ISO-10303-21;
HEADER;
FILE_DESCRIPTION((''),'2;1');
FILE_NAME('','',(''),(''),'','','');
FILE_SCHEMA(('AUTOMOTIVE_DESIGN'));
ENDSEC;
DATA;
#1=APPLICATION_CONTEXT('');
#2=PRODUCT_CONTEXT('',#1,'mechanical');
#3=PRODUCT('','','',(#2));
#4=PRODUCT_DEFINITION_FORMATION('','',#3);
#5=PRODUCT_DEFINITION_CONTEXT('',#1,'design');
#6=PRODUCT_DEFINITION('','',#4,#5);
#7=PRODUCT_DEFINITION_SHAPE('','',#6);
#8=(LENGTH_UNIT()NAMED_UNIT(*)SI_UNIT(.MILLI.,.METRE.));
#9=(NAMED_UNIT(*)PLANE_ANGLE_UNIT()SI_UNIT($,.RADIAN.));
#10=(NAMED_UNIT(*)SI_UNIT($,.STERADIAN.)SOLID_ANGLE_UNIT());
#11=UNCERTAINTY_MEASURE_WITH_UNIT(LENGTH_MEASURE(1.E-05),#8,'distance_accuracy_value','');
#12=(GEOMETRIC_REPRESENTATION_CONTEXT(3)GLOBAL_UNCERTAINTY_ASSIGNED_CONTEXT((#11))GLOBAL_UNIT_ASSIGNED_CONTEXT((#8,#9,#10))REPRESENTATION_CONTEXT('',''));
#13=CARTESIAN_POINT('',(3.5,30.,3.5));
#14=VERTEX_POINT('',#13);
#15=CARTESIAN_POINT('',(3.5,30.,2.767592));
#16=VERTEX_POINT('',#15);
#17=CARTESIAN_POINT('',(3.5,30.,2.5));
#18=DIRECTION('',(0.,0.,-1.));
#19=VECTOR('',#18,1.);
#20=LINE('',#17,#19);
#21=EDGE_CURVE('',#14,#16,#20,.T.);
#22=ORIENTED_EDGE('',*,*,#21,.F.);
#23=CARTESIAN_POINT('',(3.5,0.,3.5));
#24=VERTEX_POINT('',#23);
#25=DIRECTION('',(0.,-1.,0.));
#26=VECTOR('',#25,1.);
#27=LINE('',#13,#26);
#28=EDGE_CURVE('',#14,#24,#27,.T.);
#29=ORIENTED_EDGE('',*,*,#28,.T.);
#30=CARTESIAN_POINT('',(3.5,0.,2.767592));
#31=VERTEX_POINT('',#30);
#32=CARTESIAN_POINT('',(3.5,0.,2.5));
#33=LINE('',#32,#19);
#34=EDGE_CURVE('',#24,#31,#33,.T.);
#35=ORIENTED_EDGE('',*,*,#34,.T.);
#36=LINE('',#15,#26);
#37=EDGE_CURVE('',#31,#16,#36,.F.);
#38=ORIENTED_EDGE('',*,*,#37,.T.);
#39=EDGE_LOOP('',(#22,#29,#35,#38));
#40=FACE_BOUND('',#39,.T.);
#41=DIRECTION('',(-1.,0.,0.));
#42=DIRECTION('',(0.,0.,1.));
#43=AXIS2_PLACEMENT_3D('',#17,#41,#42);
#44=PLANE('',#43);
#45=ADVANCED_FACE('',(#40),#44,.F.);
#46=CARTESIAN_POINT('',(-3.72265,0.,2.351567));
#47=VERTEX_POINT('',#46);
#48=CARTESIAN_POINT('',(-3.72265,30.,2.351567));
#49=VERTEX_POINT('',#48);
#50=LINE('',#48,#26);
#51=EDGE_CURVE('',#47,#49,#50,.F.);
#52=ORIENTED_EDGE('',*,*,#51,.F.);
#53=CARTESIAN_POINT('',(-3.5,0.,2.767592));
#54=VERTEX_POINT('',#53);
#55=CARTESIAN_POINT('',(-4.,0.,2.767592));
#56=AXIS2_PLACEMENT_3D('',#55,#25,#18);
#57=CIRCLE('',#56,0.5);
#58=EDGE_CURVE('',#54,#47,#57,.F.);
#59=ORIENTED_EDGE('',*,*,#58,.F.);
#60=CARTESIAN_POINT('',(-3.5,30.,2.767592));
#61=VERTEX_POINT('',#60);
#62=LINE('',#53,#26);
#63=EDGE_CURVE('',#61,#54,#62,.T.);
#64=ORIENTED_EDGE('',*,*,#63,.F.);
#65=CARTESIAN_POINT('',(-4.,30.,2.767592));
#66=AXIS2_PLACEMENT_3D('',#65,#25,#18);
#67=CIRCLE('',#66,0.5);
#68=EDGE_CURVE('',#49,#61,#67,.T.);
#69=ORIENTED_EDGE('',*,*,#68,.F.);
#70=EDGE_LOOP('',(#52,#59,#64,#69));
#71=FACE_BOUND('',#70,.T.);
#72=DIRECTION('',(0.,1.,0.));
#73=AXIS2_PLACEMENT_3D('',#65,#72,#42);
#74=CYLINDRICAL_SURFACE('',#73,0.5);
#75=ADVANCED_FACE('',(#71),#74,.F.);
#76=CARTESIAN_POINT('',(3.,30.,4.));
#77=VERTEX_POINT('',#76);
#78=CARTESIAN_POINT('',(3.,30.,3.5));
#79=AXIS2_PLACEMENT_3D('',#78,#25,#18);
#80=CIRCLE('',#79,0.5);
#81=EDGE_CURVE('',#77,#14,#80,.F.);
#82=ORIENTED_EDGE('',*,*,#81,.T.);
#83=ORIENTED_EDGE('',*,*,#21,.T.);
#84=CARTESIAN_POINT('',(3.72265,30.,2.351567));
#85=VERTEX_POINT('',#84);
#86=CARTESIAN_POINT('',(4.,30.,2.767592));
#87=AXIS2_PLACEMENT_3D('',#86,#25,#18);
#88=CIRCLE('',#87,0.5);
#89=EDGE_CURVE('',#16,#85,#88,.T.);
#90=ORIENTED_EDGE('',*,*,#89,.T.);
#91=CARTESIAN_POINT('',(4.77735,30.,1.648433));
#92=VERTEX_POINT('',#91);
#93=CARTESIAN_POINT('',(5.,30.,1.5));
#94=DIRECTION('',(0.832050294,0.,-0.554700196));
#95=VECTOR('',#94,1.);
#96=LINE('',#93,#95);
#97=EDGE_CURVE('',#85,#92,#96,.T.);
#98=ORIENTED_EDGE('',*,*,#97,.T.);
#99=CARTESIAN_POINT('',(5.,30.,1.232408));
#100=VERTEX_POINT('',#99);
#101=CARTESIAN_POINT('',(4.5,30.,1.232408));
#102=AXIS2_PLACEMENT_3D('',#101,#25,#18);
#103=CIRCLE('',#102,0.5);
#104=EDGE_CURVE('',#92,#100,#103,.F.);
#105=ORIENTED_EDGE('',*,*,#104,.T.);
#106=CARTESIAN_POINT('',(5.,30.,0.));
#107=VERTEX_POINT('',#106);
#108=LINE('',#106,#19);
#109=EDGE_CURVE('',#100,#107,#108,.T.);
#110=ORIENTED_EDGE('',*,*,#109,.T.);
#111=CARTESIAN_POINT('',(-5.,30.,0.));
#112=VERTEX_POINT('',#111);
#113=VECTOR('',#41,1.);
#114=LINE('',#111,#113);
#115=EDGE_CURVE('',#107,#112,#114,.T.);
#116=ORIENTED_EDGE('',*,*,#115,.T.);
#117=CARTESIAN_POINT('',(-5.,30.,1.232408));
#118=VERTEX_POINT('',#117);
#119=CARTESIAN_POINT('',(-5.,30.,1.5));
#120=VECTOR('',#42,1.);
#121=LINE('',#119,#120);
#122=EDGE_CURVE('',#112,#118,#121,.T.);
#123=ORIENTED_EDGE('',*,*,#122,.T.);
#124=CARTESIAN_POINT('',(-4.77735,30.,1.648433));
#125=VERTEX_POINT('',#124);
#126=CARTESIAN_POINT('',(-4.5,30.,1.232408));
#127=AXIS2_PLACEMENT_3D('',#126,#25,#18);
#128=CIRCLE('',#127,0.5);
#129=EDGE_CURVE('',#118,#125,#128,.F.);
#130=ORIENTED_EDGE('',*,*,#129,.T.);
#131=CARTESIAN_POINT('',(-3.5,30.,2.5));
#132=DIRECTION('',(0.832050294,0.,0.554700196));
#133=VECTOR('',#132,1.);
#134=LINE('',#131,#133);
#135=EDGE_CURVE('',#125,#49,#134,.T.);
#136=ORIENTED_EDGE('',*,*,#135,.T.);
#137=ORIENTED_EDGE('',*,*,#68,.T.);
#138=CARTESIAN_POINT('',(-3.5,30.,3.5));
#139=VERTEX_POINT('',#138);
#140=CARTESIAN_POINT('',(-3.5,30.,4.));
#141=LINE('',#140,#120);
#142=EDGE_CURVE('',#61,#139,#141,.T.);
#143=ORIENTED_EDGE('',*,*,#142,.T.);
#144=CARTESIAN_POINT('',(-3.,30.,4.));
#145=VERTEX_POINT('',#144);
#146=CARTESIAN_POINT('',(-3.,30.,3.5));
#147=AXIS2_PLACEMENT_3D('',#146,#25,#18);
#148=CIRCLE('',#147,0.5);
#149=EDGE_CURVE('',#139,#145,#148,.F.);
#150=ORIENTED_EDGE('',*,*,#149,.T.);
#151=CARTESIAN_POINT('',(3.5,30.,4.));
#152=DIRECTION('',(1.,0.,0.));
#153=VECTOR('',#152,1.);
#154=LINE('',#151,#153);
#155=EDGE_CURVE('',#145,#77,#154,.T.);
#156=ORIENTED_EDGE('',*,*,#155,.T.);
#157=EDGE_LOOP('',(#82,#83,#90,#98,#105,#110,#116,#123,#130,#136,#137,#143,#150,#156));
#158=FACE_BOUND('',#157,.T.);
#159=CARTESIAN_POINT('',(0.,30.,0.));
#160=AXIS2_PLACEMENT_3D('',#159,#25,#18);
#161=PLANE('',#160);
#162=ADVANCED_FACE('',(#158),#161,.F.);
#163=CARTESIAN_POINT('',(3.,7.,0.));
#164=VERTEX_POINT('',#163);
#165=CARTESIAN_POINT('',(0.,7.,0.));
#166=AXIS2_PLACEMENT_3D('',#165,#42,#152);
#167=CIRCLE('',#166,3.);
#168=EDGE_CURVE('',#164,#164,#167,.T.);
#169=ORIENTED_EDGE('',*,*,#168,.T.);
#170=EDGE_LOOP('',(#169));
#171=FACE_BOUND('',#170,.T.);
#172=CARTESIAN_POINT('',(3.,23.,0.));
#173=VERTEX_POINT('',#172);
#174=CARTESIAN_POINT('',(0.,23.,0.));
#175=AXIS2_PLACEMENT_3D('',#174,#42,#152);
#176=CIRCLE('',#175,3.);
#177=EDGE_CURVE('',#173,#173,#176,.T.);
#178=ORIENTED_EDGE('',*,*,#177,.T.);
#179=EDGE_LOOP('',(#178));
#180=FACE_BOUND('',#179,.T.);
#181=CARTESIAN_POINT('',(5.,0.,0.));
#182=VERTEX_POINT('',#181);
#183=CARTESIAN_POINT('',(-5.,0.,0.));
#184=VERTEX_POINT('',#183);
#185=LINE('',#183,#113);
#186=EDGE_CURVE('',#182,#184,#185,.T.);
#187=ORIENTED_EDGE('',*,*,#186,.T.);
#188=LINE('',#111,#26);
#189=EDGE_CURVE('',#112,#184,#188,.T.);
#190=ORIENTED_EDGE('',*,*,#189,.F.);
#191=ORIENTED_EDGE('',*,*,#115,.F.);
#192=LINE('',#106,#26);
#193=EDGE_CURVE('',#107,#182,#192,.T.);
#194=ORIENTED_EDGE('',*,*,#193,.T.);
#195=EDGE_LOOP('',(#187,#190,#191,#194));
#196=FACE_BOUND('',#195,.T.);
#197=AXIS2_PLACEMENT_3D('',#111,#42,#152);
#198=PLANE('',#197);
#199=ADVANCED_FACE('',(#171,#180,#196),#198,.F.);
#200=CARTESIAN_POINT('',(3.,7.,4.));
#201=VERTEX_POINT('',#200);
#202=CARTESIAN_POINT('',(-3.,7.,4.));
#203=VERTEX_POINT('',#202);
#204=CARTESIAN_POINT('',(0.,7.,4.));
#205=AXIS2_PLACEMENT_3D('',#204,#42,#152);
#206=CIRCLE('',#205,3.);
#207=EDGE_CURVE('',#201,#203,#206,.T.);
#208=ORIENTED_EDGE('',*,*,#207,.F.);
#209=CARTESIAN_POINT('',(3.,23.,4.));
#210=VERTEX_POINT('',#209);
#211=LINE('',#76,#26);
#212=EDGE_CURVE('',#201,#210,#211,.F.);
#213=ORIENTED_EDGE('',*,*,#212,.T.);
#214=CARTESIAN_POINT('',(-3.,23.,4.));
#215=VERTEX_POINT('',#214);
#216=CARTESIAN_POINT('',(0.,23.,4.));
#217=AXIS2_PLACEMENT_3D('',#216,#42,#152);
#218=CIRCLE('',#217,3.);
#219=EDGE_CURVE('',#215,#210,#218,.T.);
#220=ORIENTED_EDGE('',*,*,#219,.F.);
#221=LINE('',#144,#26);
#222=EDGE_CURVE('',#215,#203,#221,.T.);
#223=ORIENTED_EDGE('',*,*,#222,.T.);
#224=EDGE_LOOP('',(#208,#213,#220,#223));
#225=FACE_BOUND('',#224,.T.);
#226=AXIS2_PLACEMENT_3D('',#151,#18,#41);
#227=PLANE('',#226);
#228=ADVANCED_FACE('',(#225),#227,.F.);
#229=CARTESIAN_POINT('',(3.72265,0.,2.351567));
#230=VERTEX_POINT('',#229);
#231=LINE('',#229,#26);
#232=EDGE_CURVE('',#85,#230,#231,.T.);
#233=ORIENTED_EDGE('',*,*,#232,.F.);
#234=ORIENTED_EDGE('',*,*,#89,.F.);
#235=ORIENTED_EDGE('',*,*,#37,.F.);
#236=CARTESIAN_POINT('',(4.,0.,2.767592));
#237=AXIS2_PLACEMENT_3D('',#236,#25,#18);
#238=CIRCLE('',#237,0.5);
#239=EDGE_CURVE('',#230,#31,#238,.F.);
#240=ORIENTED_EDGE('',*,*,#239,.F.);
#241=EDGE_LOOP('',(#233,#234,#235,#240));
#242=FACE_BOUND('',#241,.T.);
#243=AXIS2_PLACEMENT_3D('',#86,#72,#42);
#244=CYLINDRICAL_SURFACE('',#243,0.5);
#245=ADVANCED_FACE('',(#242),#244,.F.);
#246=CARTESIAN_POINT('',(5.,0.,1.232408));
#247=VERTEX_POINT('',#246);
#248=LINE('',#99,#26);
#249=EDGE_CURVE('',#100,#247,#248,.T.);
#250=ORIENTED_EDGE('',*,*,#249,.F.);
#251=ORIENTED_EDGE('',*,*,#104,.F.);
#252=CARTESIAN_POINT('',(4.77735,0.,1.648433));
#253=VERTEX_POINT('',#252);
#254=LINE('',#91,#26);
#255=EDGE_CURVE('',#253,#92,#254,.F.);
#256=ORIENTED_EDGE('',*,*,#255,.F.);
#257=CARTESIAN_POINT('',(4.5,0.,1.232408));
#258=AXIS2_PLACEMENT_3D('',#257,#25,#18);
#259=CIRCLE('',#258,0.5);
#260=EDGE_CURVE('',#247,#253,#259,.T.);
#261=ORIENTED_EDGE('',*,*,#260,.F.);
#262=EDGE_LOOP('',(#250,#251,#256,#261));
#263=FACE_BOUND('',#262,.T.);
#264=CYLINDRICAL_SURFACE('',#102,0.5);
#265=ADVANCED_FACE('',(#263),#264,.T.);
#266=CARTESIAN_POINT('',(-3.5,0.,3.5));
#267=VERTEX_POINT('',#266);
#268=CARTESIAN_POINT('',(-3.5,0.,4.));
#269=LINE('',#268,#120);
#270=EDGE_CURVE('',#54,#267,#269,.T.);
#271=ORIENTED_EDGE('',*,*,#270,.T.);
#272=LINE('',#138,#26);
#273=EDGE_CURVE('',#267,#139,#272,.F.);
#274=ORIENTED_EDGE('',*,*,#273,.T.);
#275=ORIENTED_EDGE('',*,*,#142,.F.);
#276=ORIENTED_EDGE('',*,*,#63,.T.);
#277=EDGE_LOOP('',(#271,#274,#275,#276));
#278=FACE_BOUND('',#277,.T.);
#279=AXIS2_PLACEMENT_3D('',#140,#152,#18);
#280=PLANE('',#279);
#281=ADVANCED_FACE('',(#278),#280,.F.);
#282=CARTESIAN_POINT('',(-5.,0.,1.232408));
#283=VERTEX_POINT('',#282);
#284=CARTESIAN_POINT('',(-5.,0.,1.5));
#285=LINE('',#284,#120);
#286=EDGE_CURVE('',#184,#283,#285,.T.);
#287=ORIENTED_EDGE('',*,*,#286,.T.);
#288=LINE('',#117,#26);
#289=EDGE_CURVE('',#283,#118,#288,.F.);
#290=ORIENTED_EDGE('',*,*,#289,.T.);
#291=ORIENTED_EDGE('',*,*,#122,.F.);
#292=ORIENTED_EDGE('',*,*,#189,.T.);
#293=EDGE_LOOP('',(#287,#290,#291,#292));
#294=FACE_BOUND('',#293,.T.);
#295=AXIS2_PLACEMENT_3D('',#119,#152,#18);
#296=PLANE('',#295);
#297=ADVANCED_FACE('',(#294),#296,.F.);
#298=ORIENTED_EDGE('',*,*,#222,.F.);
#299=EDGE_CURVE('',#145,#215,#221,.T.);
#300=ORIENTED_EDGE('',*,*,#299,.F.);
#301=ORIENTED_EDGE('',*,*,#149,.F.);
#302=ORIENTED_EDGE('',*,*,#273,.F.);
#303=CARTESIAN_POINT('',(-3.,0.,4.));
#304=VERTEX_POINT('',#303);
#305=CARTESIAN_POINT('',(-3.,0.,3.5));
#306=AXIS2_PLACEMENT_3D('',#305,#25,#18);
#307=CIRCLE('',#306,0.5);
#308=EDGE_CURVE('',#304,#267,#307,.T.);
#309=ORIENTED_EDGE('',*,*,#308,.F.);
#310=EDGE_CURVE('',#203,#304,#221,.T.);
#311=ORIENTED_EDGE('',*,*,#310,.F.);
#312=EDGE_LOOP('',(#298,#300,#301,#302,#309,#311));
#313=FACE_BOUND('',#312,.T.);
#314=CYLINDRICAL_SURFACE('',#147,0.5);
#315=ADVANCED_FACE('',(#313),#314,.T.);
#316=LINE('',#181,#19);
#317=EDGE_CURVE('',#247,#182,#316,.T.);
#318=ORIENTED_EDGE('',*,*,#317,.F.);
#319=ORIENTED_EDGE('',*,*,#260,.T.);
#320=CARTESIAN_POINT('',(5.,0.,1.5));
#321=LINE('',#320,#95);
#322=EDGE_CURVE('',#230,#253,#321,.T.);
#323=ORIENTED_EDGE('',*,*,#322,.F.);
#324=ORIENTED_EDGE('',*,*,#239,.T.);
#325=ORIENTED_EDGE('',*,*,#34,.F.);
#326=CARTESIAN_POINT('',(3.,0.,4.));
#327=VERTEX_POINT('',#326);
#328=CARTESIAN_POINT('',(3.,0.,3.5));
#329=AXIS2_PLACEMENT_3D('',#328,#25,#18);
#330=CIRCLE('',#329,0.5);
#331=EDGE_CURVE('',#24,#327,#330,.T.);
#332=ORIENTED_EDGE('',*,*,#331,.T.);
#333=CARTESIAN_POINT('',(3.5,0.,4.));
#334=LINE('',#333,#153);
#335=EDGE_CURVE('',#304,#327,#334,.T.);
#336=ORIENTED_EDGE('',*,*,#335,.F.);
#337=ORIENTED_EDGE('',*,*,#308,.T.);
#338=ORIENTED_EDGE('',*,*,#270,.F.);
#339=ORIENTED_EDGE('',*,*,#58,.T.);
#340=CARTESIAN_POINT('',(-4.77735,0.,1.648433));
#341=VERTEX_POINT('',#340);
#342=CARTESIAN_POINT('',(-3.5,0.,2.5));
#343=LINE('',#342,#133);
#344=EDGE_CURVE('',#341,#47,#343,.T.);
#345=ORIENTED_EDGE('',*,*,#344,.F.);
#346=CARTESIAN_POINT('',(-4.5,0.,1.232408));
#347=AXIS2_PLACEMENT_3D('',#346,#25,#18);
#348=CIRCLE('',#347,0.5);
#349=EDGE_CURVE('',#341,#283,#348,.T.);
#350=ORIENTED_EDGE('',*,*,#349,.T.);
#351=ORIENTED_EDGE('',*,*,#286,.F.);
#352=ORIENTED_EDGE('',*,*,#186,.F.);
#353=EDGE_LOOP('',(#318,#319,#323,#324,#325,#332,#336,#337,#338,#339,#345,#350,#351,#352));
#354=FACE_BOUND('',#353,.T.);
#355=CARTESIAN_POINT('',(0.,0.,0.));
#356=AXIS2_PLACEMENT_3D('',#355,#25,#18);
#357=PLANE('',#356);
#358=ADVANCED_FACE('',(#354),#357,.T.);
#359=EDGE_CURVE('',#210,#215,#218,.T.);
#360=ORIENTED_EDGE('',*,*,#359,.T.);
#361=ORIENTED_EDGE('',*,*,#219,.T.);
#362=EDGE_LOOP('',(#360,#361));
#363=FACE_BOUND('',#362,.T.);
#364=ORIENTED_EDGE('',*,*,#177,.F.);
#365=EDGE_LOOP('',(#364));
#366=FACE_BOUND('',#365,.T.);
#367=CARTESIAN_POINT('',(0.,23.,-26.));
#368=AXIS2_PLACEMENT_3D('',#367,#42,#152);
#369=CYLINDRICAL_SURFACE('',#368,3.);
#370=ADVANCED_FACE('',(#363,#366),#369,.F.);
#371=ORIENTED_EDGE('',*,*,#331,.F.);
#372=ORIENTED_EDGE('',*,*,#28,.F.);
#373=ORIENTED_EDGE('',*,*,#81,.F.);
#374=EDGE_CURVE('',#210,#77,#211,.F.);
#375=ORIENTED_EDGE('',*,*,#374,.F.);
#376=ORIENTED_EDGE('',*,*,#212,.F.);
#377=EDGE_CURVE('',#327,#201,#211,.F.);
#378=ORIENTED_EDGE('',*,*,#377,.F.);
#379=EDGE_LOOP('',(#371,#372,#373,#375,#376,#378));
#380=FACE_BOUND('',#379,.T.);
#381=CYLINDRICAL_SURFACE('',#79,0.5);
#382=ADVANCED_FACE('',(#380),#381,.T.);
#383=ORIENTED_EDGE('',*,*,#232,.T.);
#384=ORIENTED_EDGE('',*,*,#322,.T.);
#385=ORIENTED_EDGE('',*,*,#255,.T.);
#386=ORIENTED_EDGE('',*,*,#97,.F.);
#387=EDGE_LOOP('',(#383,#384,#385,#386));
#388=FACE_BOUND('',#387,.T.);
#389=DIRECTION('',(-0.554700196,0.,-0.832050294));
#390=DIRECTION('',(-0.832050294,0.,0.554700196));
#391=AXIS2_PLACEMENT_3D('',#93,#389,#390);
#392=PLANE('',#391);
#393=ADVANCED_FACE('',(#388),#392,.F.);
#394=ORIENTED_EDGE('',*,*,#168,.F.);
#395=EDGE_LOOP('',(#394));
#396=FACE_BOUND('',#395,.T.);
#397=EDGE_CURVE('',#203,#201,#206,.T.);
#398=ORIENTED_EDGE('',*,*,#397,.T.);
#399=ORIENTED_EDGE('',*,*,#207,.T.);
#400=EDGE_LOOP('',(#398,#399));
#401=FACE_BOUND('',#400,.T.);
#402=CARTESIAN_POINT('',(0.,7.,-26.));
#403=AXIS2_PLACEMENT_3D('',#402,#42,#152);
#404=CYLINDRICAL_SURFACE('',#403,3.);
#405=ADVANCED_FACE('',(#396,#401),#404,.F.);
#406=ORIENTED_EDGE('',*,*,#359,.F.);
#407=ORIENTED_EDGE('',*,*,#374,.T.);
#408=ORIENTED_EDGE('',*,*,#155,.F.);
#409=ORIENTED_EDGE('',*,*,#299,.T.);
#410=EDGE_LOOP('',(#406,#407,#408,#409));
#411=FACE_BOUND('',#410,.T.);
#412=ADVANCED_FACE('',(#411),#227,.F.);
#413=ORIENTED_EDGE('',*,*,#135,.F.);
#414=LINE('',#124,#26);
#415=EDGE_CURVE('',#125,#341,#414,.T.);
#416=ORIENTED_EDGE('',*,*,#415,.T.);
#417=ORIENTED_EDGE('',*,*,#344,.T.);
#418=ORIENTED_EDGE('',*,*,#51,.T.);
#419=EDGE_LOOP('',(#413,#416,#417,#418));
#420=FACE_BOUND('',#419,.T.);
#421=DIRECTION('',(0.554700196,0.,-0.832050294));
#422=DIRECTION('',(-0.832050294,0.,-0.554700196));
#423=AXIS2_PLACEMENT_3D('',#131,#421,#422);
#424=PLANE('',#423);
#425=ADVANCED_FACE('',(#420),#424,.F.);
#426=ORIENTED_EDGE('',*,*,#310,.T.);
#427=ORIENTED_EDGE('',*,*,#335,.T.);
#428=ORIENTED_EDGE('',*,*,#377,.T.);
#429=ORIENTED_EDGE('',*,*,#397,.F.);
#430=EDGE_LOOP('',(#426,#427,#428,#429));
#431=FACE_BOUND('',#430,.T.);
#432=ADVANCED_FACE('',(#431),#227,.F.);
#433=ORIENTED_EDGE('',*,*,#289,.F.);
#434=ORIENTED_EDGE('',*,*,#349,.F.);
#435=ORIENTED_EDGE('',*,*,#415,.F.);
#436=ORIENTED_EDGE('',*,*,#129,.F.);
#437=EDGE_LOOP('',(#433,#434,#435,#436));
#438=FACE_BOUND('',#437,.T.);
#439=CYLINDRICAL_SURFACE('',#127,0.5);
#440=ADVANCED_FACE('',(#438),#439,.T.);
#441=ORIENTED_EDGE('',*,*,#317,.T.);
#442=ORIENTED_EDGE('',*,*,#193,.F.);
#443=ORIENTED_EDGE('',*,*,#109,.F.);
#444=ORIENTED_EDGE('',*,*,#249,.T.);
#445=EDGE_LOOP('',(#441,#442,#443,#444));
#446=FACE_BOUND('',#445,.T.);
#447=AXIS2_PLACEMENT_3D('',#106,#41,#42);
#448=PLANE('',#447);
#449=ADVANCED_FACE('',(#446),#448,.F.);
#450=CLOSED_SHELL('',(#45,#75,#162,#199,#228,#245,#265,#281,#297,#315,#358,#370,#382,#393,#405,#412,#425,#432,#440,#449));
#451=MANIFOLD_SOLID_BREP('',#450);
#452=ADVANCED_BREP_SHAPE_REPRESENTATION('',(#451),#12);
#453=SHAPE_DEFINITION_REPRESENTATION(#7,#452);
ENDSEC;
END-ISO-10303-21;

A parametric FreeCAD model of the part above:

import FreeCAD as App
import Part
import Sketcher

V = App.Vector


def edges_at(feature, points):
    """Names of the edges that pass closest to the given points."""
    edges = feature.Shape.Edges
    near = lambda p: min(range(len(edges)), key=lambda i: edges[i].distToShape(Part.Vertex(*p))[0])
    return sorted({f"Edge{near(p) + 1}" for p in points})

doc = App.newDocument("Part")
params = doc.addObject("Spreadsheet::Sheet", "Params")
for row, (alias, value) in enumerate([
    ("sketch1_width", "10 mm"),
    ("sketch1_width2", "7 mm"),
    ("sketch1_height", "1.5 mm"),
    ("pad1_length", "30 mm"),
    ("fillet_radius", "0.5 mm"),
    ("sketch2_diameter", "6 mm"),
    ("pocket1_length", "30 mm"),
], start=1):
    params.set(f"A{row}", alias)
    params.set(f"B{row}", "=" + value)
    params.setAlias(f"B{row}", alias)

body = doc.addObject("PartDesign::Body", "Body")

sketch1 = body.newObject("Sketcher::SketchObject", "Sketch")
sketch1.AttachmentSupport = (doc.getObject("XZ_Plane"), [""])
sketch1.MapMode = "FlatFace"
sketch1.addGeometry([
    Part.LineSegment(V(5, 0, 0), V(-5, 0, 0)),
    Part.LineSegment(V(-5, 0, 0), V(-5, 1.5, 0)),
    Part.LineSegment(V(-5, 1.5, 0), V(-3.5, 2.5, 0)),
    Part.LineSegment(V(-3.5, 2.5, 0), V(-3.5, 4, 0)),
    Part.LineSegment(V(-3.5, 4, 0), V(3.5, 4, 0)),
    Part.LineSegment(V(3.5, 4, 0), V(3.5, 2.5, 0)),
    Part.LineSegment(V(3.5, 2.5, 0), V(5, 1.5, 0)),
    Part.LineSegment(V(5, 1.5, 0), V(5, 0, 0)),
], False)
sketch1.addConstraint([
    Sketcher.Constraint("Coincident", 0, 2, 1, 1),
    Sketcher.Constraint("Coincident", 1, 2, 2, 1),
    Sketcher.Constraint("Coincident", 2, 2, 3, 1),
    Sketcher.Constraint("Coincident", 3, 2, 4, 1),
    Sketcher.Constraint("Coincident", 4, 2, 5, 1),
    Sketcher.Constraint("Coincident", 5, 2, 6, 1),
    Sketcher.Constraint("Coincident", 6, 2, 7, 1),
    Sketcher.Constraint("Coincident", 7, 2, 0, 1),
    Sketcher.Constraint("Horizontal", 0),
    Sketcher.Constraint("Vertical", 1),
    Sketcher.Constraint("Vertical", 3),
    Sketcher.Constraint("Horizontal", 4),
    Sketcher.Constraint("Vertical", 5),
    Sketcher.Constraint("Vertical", 7),
    Sketcher.Constraint("Symmetric", 0, 2, 7, 2, -1, 1),
    Sketcher.Constraint("Symmetric", 2, 2, 5, 2, -2),
    Sketcher.Constraint("Horizontal", 1, 2, 6, 2),
    Sketcher.Constraint("Equal", 1, 3),
    Sketcher.Constraint("DistanceX", 0, 2, 0, 1, 10.0),
    Sketcher.Constraint("DistanceX", 4, 1, 4, 2, 7.0),
    Sketcher.Constraint("DistanceY", 1, 1, 1, 2, 1.5),
    Sketcher.Constraint("DistanceY", -1, 1, 3, 2, 4.0),
])
sketch1.setExpression("Constraints[18]", "Params.sketch1_width")
sketch1.setExpression("Constraints[19]", "Params.sketch1_width2")
sketch1.setExpression("Constraints[20]", "Params.sketch1_height")
pad1 = body.newObject("PartDesign::Pad", "Pad")
pad1.Profile = sketch1
pad1.setExpression("Length", "Params.pad1_length")
pad1.Reversed = True
doc.recompute()

fillet = body.newObject("PartDesign::Fillet", "Fillet")
fillet.Base = (pad1, edges_at(pad1, [
    (5, 15, 1.5),
    (3.5, 15, 2.5),
    (3.5, 15, 4),
    (-3.5, 15, 4),
    (-3.5, 15, 2.5),
    (-5, 15, 1.5),
]))
fillet.setExpression("Radius", "Params.fillet_radius")

sketch2 = body.newObject("Sketcher::SketchObject", "Sketch001")
sketch2.AttachmentSupport = (doc.getObject("XY_Plane"), [""])
sketch2.MapMode = "FlatFace"
sketch2.AttachmentOffset = App.Placement(V(0, 0, 4), App.Rotation())
sketch2.addGeometry([
    Part.Circle(V(0, 23, 0), V(0, 0, 1), 3),
    Part.Circle(V(0, 7, 0), V(0, 0, 1), 3),
], False)
sketch2.addConstraint([
    Sketcher.Constraint("Equal", 0, 1),
    Sketcher.Constraint("PointOnObject", 0, 3, -2),
    Sketcher.Constraint("PointOnObject", 1, 3, -2),
    Sketcher.Constraint("Diameter", 0, 6.0),
    Sketcher.Constraint("DistanceY", -1, 1, 0, 3, 23.0),
    Sketcher.Constraint("DistanceY", -1, 1, 1, 3, 7.0),
])
sketch2.setExpression("Constraints[3]", "Params.sketch2_diameter")
pocket1 = body.newObject("PartDesign::Pocket", "Pocket")
pocket1.Profile = sketch2
pocket1.setExpression("Length", "Params.pocket1_length")

doc.recompute()
